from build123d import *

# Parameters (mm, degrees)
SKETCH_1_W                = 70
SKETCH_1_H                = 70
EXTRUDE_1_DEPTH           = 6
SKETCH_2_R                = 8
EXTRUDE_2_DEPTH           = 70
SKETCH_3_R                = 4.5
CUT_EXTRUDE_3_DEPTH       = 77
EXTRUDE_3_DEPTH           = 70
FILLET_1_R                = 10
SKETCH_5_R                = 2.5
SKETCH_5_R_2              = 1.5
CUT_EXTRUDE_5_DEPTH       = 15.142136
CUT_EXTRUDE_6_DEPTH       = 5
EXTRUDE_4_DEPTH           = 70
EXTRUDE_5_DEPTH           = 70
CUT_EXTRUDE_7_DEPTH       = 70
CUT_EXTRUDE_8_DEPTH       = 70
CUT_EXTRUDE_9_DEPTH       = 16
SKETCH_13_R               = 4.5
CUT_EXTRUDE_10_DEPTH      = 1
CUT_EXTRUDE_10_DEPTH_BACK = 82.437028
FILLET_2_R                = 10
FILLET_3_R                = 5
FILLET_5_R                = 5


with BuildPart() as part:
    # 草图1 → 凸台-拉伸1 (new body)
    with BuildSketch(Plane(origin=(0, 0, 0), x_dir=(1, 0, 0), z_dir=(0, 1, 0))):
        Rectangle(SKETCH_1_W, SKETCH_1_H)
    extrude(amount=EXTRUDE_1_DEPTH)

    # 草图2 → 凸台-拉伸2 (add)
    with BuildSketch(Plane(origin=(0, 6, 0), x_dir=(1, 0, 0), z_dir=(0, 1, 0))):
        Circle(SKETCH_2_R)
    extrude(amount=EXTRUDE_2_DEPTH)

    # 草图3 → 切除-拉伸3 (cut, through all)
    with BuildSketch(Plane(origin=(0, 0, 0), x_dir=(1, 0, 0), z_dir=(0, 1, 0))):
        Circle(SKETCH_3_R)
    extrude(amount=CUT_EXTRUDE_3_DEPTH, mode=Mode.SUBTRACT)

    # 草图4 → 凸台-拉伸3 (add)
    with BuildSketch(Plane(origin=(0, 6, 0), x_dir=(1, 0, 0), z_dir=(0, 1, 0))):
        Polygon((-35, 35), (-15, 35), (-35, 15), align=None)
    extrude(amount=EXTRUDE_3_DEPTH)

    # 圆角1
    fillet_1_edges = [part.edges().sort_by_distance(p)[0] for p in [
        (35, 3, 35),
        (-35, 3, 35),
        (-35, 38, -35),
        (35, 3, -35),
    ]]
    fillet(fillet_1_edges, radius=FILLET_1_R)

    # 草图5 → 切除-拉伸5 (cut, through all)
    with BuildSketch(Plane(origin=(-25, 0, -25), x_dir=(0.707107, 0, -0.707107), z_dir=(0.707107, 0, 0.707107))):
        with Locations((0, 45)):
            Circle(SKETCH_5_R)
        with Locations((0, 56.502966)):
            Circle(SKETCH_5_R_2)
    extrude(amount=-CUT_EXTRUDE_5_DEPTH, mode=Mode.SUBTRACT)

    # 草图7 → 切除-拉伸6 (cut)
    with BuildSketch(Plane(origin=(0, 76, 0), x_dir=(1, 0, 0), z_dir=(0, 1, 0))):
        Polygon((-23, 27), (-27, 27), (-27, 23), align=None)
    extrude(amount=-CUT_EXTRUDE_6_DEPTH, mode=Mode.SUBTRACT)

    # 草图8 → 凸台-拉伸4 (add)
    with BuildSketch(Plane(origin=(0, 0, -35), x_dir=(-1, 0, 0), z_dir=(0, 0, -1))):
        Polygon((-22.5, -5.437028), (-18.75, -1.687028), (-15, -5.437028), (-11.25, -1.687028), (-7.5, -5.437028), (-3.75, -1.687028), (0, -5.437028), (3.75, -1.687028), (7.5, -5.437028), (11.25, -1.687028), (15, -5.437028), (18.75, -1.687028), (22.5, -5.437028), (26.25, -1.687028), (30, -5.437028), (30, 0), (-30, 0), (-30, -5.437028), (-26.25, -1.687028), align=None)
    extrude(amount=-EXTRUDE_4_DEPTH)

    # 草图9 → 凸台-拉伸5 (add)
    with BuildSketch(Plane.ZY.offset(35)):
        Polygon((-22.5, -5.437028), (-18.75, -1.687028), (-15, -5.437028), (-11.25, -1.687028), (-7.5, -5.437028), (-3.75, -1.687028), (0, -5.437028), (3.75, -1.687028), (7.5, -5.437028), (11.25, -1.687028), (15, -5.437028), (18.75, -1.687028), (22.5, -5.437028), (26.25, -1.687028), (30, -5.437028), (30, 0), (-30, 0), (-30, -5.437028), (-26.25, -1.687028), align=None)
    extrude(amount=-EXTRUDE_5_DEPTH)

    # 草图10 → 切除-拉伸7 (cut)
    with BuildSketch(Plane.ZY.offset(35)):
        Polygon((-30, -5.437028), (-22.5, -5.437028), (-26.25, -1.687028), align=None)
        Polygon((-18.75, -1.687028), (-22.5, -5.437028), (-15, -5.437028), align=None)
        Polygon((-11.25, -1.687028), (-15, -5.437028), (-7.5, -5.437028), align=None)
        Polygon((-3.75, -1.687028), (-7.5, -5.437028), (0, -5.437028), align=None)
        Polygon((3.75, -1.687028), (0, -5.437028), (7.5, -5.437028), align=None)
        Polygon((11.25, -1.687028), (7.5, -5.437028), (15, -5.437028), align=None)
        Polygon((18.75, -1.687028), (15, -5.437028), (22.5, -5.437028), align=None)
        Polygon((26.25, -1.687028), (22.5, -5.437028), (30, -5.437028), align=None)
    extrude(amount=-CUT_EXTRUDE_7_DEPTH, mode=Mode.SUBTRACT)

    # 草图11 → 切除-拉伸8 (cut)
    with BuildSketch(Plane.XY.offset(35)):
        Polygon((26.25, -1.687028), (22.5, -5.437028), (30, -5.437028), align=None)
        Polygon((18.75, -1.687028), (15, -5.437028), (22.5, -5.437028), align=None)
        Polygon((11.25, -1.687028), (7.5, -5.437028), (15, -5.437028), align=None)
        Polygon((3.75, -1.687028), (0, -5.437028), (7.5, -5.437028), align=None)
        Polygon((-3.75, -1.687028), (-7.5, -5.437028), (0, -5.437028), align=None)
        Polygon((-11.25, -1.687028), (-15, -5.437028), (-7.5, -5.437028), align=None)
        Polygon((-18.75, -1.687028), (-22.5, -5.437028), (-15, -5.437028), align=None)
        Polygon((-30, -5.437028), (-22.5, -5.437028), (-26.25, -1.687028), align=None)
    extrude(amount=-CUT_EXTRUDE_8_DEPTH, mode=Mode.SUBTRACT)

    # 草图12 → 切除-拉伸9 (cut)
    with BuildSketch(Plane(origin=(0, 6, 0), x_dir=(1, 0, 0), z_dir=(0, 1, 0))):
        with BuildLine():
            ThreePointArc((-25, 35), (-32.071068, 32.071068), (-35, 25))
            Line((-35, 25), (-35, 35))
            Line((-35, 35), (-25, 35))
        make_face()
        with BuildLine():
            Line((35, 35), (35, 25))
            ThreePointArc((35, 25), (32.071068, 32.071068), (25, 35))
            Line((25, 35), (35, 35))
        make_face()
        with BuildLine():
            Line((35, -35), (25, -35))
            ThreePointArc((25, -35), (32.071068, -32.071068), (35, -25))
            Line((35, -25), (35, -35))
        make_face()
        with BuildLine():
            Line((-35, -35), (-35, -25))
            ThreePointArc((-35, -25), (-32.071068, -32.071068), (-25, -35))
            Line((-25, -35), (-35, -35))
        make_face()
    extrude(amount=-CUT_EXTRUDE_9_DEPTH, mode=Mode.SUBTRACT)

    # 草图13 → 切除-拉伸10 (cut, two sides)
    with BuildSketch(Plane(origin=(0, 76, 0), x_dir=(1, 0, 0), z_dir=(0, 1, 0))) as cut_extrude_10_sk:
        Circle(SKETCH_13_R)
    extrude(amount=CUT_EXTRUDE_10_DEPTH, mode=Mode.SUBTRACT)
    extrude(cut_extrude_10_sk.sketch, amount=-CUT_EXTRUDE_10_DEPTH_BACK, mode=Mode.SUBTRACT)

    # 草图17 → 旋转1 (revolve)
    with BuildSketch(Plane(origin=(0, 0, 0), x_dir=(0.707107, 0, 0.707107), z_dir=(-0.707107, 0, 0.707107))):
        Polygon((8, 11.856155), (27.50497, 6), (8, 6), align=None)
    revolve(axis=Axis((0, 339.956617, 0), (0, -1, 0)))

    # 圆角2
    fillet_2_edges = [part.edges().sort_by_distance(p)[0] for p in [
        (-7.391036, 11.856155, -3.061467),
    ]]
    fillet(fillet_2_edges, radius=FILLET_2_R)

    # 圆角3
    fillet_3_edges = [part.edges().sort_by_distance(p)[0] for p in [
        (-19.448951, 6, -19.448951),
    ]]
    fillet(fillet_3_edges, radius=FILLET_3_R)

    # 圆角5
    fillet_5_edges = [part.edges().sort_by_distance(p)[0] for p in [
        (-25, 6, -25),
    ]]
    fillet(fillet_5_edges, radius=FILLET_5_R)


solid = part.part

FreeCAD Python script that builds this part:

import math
import FreeCAD as App
import Part
import Sketcher


def edges_at(feature, points):
    """Names of the edges that pass closest to the given points."""
    edges = feature.Shape.Edges
    near = lambda p: min(range(len(edges)), key=lambda i: edges[i].distToShape(Part.Vertex(*p))[0])
    return sorted({f"Edge{near(p) + 1}" for p in points})

doc = App.newDocument("Part")
body = doc.addObject("PartDesign::Body", "Body")

sketch1 = body.newObject("Sketcher::SketchObject", "Sketch")
sketch1.AttachmentSupport = (doc.getObject("XZ_Plane"), [""])
sketch1.MapMode = "FlatFace"
sketch1.addGeometry([
    Part.LineSegment(App.Vector(-35, -35, 0), App.Vector(-35, 35, 0)),
    Part.LineSegment(App.Vector(-35, 35, 0), App.Vector(35, 35, 0)),
    Part.LineSegment(App.Vector(35, 35, 0), App.Vector(35, -35, 0)),
    Part.LineSegment(App.Vector(35, -35, 0), App.Vector(-35, -35, 0)),
], False)
sketch1.addConstraint([
    Sketcher.Constraint("Coincident", 0, 2, 1, 1),
    Sketcher.Constraint("Coincident", 1, 2, 2, 1),
    Sketcher.Constraint("Coincident", 2, 2, 3, 1),
    Sketcher.Constraint("Coincident", 3, 2, 0, 1),
    Sketcher.Constraint("Vertical", 0),
    Sketcher.Constraint("Horizontal", 1),
    Sketcher.Constraint("Vertical", 2),
    Sketcher.Constraint("Horizontal", 3),
    Sketcher.Constraint("Symmetric", 0, 2, 2, 2, -1, 1),
    Sketcher.Constraint("Equal", 3, 0),
    Sketcher.Constraint("DistanceX", 1, 1, 1, 2, 70.0),
])
pad1 = body.newObject("PartDesign::Pad", "Pad")
pad1.Profile = sketch1
pad1.Length = 6
pad1.Reversed = True

sketch2 = body.newObject("Sketcher::SketchObject", "Sketch001")
sketch2.AttachmentSupport = (doc.getObject("XZ_Plane"), [""])
sketch2.MapMode = "FlatFace"
sketch2.AttachmentOffset = App.Placement(App.Vector(0, 0, -6), App.Rotation())
sketch2.addGeometry(Part.Circle(App.Vector(0, 0, 0), App.Vector(0, 0, 1), 8), False)
sketch2.addConstraint([
    Sketcher.Constraint("Coincident", 0, 3, -1, 1),
    Sketcher.Constraint("Diameter", 0, 16.0),
])
pad2 = body.newObject("PartDesign::Pad", "Pad001")
pad2.Profile = sketch2
pad2.Length = 70
pad2.Reversed = True

sketch3 = body.newObject("Sketcher::SketchObject", "Sketch002")
sketch3.AttachmentSupport = (doc.getObject("XZ_Plane"), [""])
sketch3.MapMode = "FlatFace"
sketch3.addGeometry(Part.Circle(App.Vector(0, 0, 0), App.Vector(0, 0, 1), 4.5), False)
sketch3.addConstraint([
    Sketcher.Constraint("Coincident", 0, 3, -1, 1),
    Sketcher.Constraint("Diameter", 0, 9.0),
])
pocket1 = body.newObject("PartDesign::Pocket", "Pocket")
pocket1.Profile = sketch3
pocket1.Type = "ThroughAll"

sketch4 = body.newObject("Sketcher::SketchObject", "Sketch003")
sketch4.AttachmentSupport = (doc.getObject("XZ_Plane"), [""])
sketch4.MapMode = "FlatFace"
sketch4.AttachmentOffset = App.Placement(App.Vector(0, 0, -6), App.Rotation())
sketch4.addGeometry([
    Part.LineSegment(App.Vector(-15, -35, 0), App.Vector(-35, -35, 0)),
    Part.LineSegment(App.Vector(-35, -35, 0), App.Vector(-35, -15, 0)),
    Part.LineSegment(App.Vector(-35, -15, 0), App.Vector(-15, -35, 0)),
], False)
sketch4.addConstraint([
    Sketcher.Constraint("Coincident", 0, 2, 1, 1),
    Sketcher.Constraint("Coincident", 1, 2, 2, 1),
    Sketcher.Constraint("Coincident", 2, 2, 0, 1),
    Sketcher.Constraint("Horizontal", 0),
    Sketcher.Constraint("Vertical", 1),
    Sketcher.Constraint("Equal", 0, 1),
    Sketcher.Constraint("DistanceX", 0, 2, 0, 1, 20.0),
    Sketcher.Constraint("DistanceX", 0, 2, -1, 1, 35.0),
    Sketcher.Constraint("DistanceY", 0, 2, -1, 1, 35.0),
])
pad3 = body.newObject("PartDesign::Pad", "Pad002")
pad3.Profile = sketch4
pad3.Length = 70
pad3.Reversed = True
doc.recompute()

fillet = body.newObject("PartDesign::Fillet", "Fillet")
fillet.Base = (pad3, edges_at(pad3, [
    (35, 3, 35),
    (-35, 3, 35),
    (-35, 38, -35),
    (35, 3, -35),
]))
fillet.Radius = 10

sketch5 = body.newObject("Sketcher::SketchObject", "Sketch004")
sketch5.Placement = App.Placement(App.Vector(-25, 0, -25), App.Rotation(App.Vector(0.707106781, 0, -0.707106781), App.Vector(0, 0.999999999, 0), App.Vector(0.707106781, 0, 0.707106781), "ZXY"))
sketch5.addGeometry([
    Part.Circle(App.Vector(0, 45, 0), App.Vector(0, 0, 1), 2.5),
    Part.Circle(App.Vector(0, 56.502966, 0), App.Vector(0, 0, 1), 1.5),
], False)
sketch5.addConstraint([
    Sketcher.Constraint("PointOnObject", 0, 3, -2),
    Sketcher.Constraint("PointOnObject", 1, 3, -2),
    Sketcher.Constraint("Diameter", 0, 5.0),
    Sketcher.Constraint("Diameter", 1, 3.0),
    Sketcher.Constraint("DistanceY", -1, 1, 0, 3, 45.0),
    Sketcher.Constraint("DistanceY", -1, 1, 1, 3, 56.502966),
])
pocket2 = body.newObject("PartDesign::Pocket", "Pocket001")
pocket2.Profile = sketch5
pocket2.Type = "ThroughAll"

sketch6 = body.newObject("Sketcher::SketchObject", "Sketch005")
sketch6.AttachmentSupport = (doc.getObject("XZ_Plane"), [""])
sketch6.MapMode = "FlatFace"
sketch6.AttachmentOffset = App.Placement(App.Vector(0, 0, -76), App.Rotation())
sketch6.addGeometry([
    Part.LineSegment(App.Vector(-23, -27, 0), App.Vector(-27, -27, 0)),
    Part.LineSegment(App.Vector(-27, -27, 0), App.Vector(-27, -23, 0)),
    Part.LineSegment(App.Vector(-27, -23, 0), App.Vector(-23, -27, 0)),
], False)
sketch6.addConstraint([
    Sketcher.Constraint("Coincident", 0, 2, 1, 1),
    Sketcher.Constraint("Coincident", 1, 2, 2, 1),
    Sketcher.Constraint("Coincident", 2, 2, 0, 1),
    Sketcher.Constraint("Horizontal", 0),
    Sketcher.Constraint("Vertical", 1),
    Sketcher.Constraint("Equal", 0, 1),
    Sketcher.Constraint("DistanceX", 0, 2, 0, 1, 4.0),
    Sketcher.Constraint("DistanceX", 0, 2, -1, 1, 27.0),
    Sketcher.Constraint("DistanceY", 0, 2, -1, 1, 27.0),
])
pocket3 = body.newObject("PartDesign::Pocket", "Pocket002")
pocket3.Profile = sketch6
pocket3.Length = 5
pocket3.Reversed = True

sketch7 = body.newObject("Sketcher::SketchObject", "Sketch006")
sketch7.AttachmentSupport = (doc.getObject("XY_Plane"), [""])
sketch7.MapMode = "FlatFace"
sketch7.AttachmentOffset = App.Placement(App.Vector(0, 0, -35), App.Rotation())
sketch7.addGeometry([
    Part.LineSegment(App.Vector(22.5, -5.437028, 0), App.Vector(18.75, -1.687028, 0)),
    Part.LineSegment(App.Vector(18.75, -1.687028, 0), App.Vector(15, -5.437028, 0)),
    Part.LineSegment(App.Vector(15, -5.437028, 0), App.Vector(11.25, -1.687028, 0)),
    Part.LineSegment(App.Vector(11.25, -1.687028, 0), App.Vector(7.5, -5.437028, 0)),
    Part.LineSegment(App.Vector(7.5, -5.437028, 0), App.Vector(3.75, -1.687028, 0)),
    Part.LineSegment(App.Vector(3.75, -1.687028, 0), App.Vector(0, -5.437028, 0)),
    Part.LineSegment(App.Vector(0, -5.437028, 0), App.Vector(-3.75, -1.687028, 0)),
    Part.LineSegment(App.Vector(-3.75, -1.687028, 0), App.Vector(-7.5, -5.437028, 0)),
    Part.LineSegment(App.Vector(-7.5, -5.437028, 0), App.Vector(-11.25, -1.687028, 0)),
    Part.LineSegment(App.Vector(-11.25, -1.687028, 0), App.Vector(-15, -5.437028, 0)),
    Part.LineSegment(App.Vector(-15, -5.437028, 0), App.Vector(-18.75, -1.687028, 0)),
    Part.LineSegment(App.Vector(-18.75, -1.687028, 0), App.Vector(-22.5, -5.437028, 0)),
    Part.LineSegment(App.Vector(-22.5, -5.437028, 0), App.Vector(-26.25, -1.687028, 0)),
    Part.LineSegment(App.Vector(-26.25, -1.687028, 0), App.Vector(-30, -5.437028, 0)),
    Part.LineSegment(App.Vector(-30, -5.437028, 0), App.Vector(-30, 0, 0)),
    Part.LineSegment(App.Vector(-30, 0, 0), App.Vector(30, 0, 0)),
    Part.LineSegment(App.Vector(30, 0, 0), App.Vector(30, -5.437028, 0)),
    Part.LineSegment(App.Vector(30, -5.437028, 0), App.Vector(26.25, -1.687028, 0)),
    Part.LineSegment(App.Vector(26.25, -1.687028, 0), App.Vector(22.5, -5.437028, 0)),
], False)
sketch7.addConstraint([
    Sketcher.Constraint("Coincident", 0, 2, 1, 1),
    Sketcher.Constraint("Coincident", 1, 2, 2, 1),
    Sketcher.Constraint("Coincident", 2, 2, 3, 1),
    Sketcher.Constraint("Coincident", 3, 2, 4, 1),
    Sketcher.Constraint("Coincident", 4, 2, 5, 1),
    Sketcher.Constraint("Coincident", 5, 2, 6, 1),
    Sketcher.Constraint("Coincident", 6, 2, 7, 1),
    Sketcher.Constraint("Coincident", 7, 2, 8, 1),
    Sketcher.Constraint("Coincident", 8, 2, 9, 1),
    Sketcher.Constraint("Coincident", 9, 2, 10, 1),
    Sketcher.Constraint("Coincident", 10, 2, 11, 1),
    Sketcher.Constraint("Coincident", 11, 2, 12, 1),
    Sketcher.Constraint("Coincident", 12, 2, 13, 1),
    Sketcher.Constraint("Coincident", 13, 2, 14, 1),
    Sketcher.Constraint("Coincident", 14, 2, 15, 1),
    Sketcher.Constraint("Coincident", 15, 2, 16, 1),
    Sketcher.Constraint("Coincident", 16, 2, 17, 1),
    Sketcher.Constraint("Coincident", 17, 2, 18, 1),
    Sketcher.Constraint("Coincident", 18, 2, 0, 1),
    Sketcher.Constraint("Vertical", 14),
    Sketcher.Constraint("Horizontal", 15),
    Sketcher.Constraint("Vertical", 16),
    Sketcher.Constraint("Symmetric", 14, 2, 15, 2, -1, 1),
    Sketcher.Constraint("Symmetric", 4, 2, 6, 2, -2),
    Sketcher.Constraint("Symmetric", 3, 2, 7, 2, -2),
    Sketcher.Constraint("Symmetric", 2, 2, 8, 2, -2),
    Sketcher.Constraint("Symmetric", 1, 2, 9, 2, -2),
    Sketcher.Constraint("Symmetric", 0, 2, 10, 2, -2),
    Sketcher.Constraint("Symmetric", 12, 2, 17, 2, -2),
    Sketcher.Constraint("Symmetric", 11, 2, 18, 2, -2),
    Sketcher.Constraint("PointOnObject", 5, 2, -2),
    Sketcher.Constraint("Perpendicular", 0, 1),
    Sketcher.Constraint("Perpendicular", 1, 2),
    Sketcher.Constraint("Perpendicular", 2, 3),
    Sketcher.Constraint("Perpendicular", 3, 4),
    Sketcher.Constraint("Perpendicular", 4, 5),
    Sketcher.Constraint("Perpendicular", 5, 6),
    Sketcher.Constraint("Perpendicular", 11, 12),
    Sketcher.Constraint("Perpendicular", 12, 13),
    Sketcher.Constraint("Perpendicular", 13, 17),
    Sketcher.Constraint("Horizontal", 0, 2, 2, 2),
    Sketcher.Constraint("Horizontal", 1, 2, 3, 2),
    Sketcher.Constraint("Horizontal", 2, 2, 4, 2),
    Sketcher.Constraint("Horizontal", 3, 2, 5, 2),
    Sketcher.Constraint("Horizontal", 9, 2, 11, 2),
    Sketcher.Constraint("Horizontal", 10, 2, 12, 2),
    Sketcher.Constraint("Horizontal", 11, 2, 13, 2),
    Sketcher.Constraint("DistanceX", 15, 1, 15, 2, 60.0),
    Sketcher.Constraint("DistanceY", 14, 1, 14, 2, 5.437028),
])
pad4 = body.newObject("PartDesign::Pad", "Pad003")
pad4.Profile = sketch7
pad4.Length = 70

sketch8 = body.newObject("Sketcher::SketchObject", "Sketch007")
sketch8.AttachmentSupport = (doc.getObject("YZ_Plane"), [""])
sketch8.MapMode = "FlatFace"
sketch8.AttachmentOffset = App.Placement(App.Vector(0, 0, -35), App.Rotation())
sketch8.addGeometry([
    Part.LineSegment(App.Vector(-5.437028, -22.5, 0), App.Vector(-1.687028, -18.75, 0)),
    Part.LineSegment(App.Vector(-1.687028, -18.75, 0), App.Vector(-5.437028, -15, 0)),
    Part.LineSegment(App.Vector(-5.437028, -15, 0), App.Vector(-1.687028, -11.25, 0)),
    Part.LineSegment(App.Vector(-1.687028, -11.25, 0), App.Vector(-5.437028, -7.5, 0)),
    Part.LineSegment(App.Vector(-5.437028, -7.5, 0), App.Vector(-1.687028, -3.75, 0)),
    Part.LineSegment(App.Vector(-1.687028, -3.75, 0), App.Vector(-5.437028, 0, 0)),
    Part.LineSegment(App.Vector(-5.437028, 0, 0), App.Vector(-1.687028, 3.75, 0)),
    Part.LineSegment(App.Vector(-1.687028, 3.75, 0), App.Vector(-5.437028, 7.5, 0)),
    Part.LineSegment(App.Vector(-5.437028, 7.5, 0), App.Vector(-1.687028, 11.25, 0)),
    Part.LineSegment(App.Vector(-1.687028, 11.25, 0), App.Vector(-5.437028, 15, 0)),
    Part.LineSegment(App.Vector(-5.437028, 15, 0), App.Vector(-1.687028, 18.75, 0)),
    Part.LineSegment(App.Vector(-1.687028, 18.75, 0), App.Vector(-5.437028, 22.5, 0)),
    Part.LineSegment(App.Vector(-5.437028, 22.5, 0), App.Vector(-1.687028, 26.25, 0)),
    Part.LineSegment(App.Vector(-1.687028, 26.25, 0), App.Vector(-5.437028, 30, 0)),
    Part.LineSegment(App.Vector(-5.437028, 30, 0), App.Vector(0, 30, 0)),
    Part.LineSegment(App.Vector(0, 30, 0), App.Vector(0, -30, 0)),
    Part.LineSegment(App.Vector(0, -30, 0), App.Vector(-5.437028, -30, 0)),
    Part.LineSegment(App.Vector(-5.437028, -30, 0), App.Vector(-1.687028, -26.25, 0)),
    Part.LineSegment(App.Vector(-1.687028, -26.25, 0), App.Vector(-5.437028, -22.5, 0)),
], False)
sketch8.addConstraint([
    Sketcher.Constraint("Coincident", 0, 2, 1, 1),
    Sketcher.Constraint("Coincident", 1, 2, 2, 1),
    Sketcher.Constraint("Coincident", 2, 2, 3, 1),
    Sketcher.Constraint("Coincident", 3, 2, 4, 1),
    Sketcher.Constraint("Coincident", 4, 2, 5, 1),
    Sketcher.Constraint("Coincident", 5, 2, 6, 1),
    Sketcher.Constraint("Coincident", 6, 2, 7, 1),
    Sketcher.Constraint("Coincident", 7, 2, 8, 1),
    Sketcher.Constraint("Coincident", 8, 2, 9, 1),
    Sketcher.Constraint("Coincident", 9, 2, 10, 1),
    Sketcher.Constraint("Coincident", 10, 2, 11, 1),
    Sketcher.Constraint("Coincident", 11, 2, 12, 1),
    Sketcher.Constraint("Coincident", 12, 2, 13, 1),
    Sketcher.Constraint("Coincident", 13, 2, 14, 1),
    Sketcher.Constraint("Coincident", 14, 2, 15, 1),
    Sketcher.Constraint("Coincident", 15, 2, 16, 1),
    Sketcher.Constraint("Coincident", 16, 2, 17, 1),
    Sketcher.Constraint("Coincident", 17, 2, 18, 1),
    Sketcher.Constraint("Coincident", 18, 2, 0, 1),
    Sketcher.Constraint("Horizontal", 14),
    Sketcher.Constraint("Vertical", 15),
    Sketcher.Constraint("Horizontal", 16),
    Sketcher.Constraint("Symmetric", 14, 2, 15, 2, -1, 1),
    Sketcher.Constraint("Symmetric", 4, 2, 6, 2, -1),
    Sketcher.Constraint("Symmetric", 3, 2, 7, 2, -1),
    Sketcher.Constraint("Symmetric", 2, 2, 8, 2, -1),
    Sketcher.Constraint("Symmetric", 1, 2, 9, 2, -1),
    Sketcher.Constraint("Symmetric", 0, 2, 10, 2, -1),
    Sketcher.Constraint("Symmetric", 12, 2, 17, 2, -1),
    Sketcher.Constraint("Symmetric", 11, 2, 18, 2, -1),
    Sketcher.Constraint("PointOnObject", 5, 2, -1),
    Sketcher.Constraint("Perpendicular", 0, 1),
    Sketcher.Constraint("Perpendicular", 1, 2),
    Sketcher.Constraint("Perpendicular", 2, 3),
    Sketcher.Constraint("Perpendicular", 3, 4),
    Sketcher.Constraint("Perpendicular", 4, 5),
    Sketcher.Constraint("Perpendicular", 5, 6),
    Sketcher.Constraint("Perpendicular", 11, 12),
    Sketcher.Constraint("Perpendicular", 12, 13),
    Sketcher.Constraint("Perpendicular", 13, 17),
    Sketcher.Constraint("Vertical", 0, 2, 2, 2),
    Sketcher.Constraint("Vertical", 1, 2, 3, 2),
    Sketcher.Constraint("Vertical", 2, 2, 4, 2),
    Sketcher.Constraint("Vertical", 3, 2, 5, 2),
    Sketcher.Constraint("Vertical", 9, 2, 11, 2),
    Sketcher.Constraint("Vertical", 10, 2, 12, 2),
    Sketcher.Constraint("Vertical", 11, 2, 13, 2),
    Sketcher.Constraint("DistanceY", 15, 2, 15, 1, 60.0),
    Sketcher.Constraint("DistanceX", 14, 1, 14, 2, 5.437028),
])
pad5 = body.newObject("PartDesign::Pad", "Pad004")
pad5.Profile = sketch8
pad5.Length = 70

sketch9 = body.newObject("Sketcher::SketchObject", "Sketch008")
sketch9.AttachmentSupport = (doc.getObject("YZ_Plane"), [""])
sketch9.MapMode = "FlatFace"
sketch9.AttachmentOffset = App.Placement(App.Vector(0, 0, -35), App.Rotation())
sketch9.addGeometry([
    Part.LineSegment(App.Vector(-5.437028, -30, 0), App.Vector(-5.437028, -22.5, 0)),
    Part.LineSegment(App.Vector(-5.437028, -22.5, 0), App.Vector(-1.687028, -26.25, 0)),
    Part.LineSegment(App.Vector(-1.687028, -26.25, 0), App.Vector(-5.437028, -30, 0)),
    Part.LineSegment(App.Vector(-1.687028, -18.75, 0), App.Vector(-5.437028, -22.5, 0)),
    Part.LineSegment(App.Vector(-5.437028, -22.5, 0), App.Vector(-5.437028, -15, 0)),
    Part.LineSegment(App.Vector(-5.437028, -15, 0), App.Vector(-1.687028, -18.75, 0)),
    Part.LineSegment(App.Vector(-1.687028, -11.25, 0), App.Vector(-5.437028, -15, 0)),
    Part.LineSegment(App.Vector(-5.437028, -15, 0), App.Vector(-5.437028, -7.5, 0)),
    Part.LineSegment(App.Vector(-5.437028, -7.5, 0), App.Vector(-1.687028, -11.25, 0)),
    Part.LineSegment(App.Vector(-1.687028, -3.75, 0), App.Vector(-5.437028, -7.5, 0)),
    Part.LineSegment(App.Vector(-5.437028, -7.5, 0), App.Vector(-5.437028, 0, 0)),
    Part.LineSegment(App.Vector(-5.437028, 0, 0), App.Vector(-1.687028, -3.75, 0)),
    Part.LineSegment(App.Vector(-1.687028, 3.75, 0), App.Vector(-5.437028, 0, 0)),
    Part.LineSegment(App.Vector(-5.437028, 0, 0), App.Vector(-5.437028, 7.5, 0)),
    Part.LineSegment(App.Vector(-5.437028, 7.5, 0), App.Vector(-1.687028, 3.75, 0)),
    Part.LineSegment(App.Vector(-1.687028, 11.25, 0), App.Vector(-5.437028, 7.5, 0)),
    Part.LineSegment(App.Vector(-5.437028, 7.5, 0), App.Vector(-5.437028, 15, 0)),
    Part.LineSegment(App.Vector(-5.437028, 15, 0), App.Vector(-1.687028, 11.25, 0)),
    Part.LineSegment(App.Vector(-1.687028, 18.75, 0), App.Vector(-5.437028, 15, 0)),
    Part.LineSegment(App.Vector(-5.437028, 15, 0), App.Vector(-5.437028, 22.5, 0)),
    Part.LineSegment(App.Vector(-5.437028, 22.5, 0), App.Vector(-1.687028, 18.75, 0)),
    Part.LineSegment(App.Vector(-1.687028, 26.25, 0), App.Vector(-5.437028, 22.5, 0)),
    Part.LineSegment(App.Vector(-5.437028, 22.5, 0), App.Vector(-5.437028, 30, 0)),
    Part.LineSegment(App.Vector(-5.437028, 30, 0), App.Vector(-1.687028, 26.25, 0)),
], False)
sketch9.addConstraint([
    Sketcher.Constraint("Coincident", 0, 2, 1, 1),
    Sketcher.Constraint("Coincident", 1, 2, 2, 1),
    Sketcher.Constraint("Coincident", 2, 2, 0, 1),
    Sketcher.Constraint("Coincident", 3, 2, 4, 1),
    Sketcher.Constraint("Coincident", 4, 2, 5, 1),
    Sketcher.Constraint("Coincident", 5, 2, 3, 1),
    Sketcher.Constraint("Coincident", 6, 2, 7, 1),
    Sketcher.Constraint("Coincident", 7, 2, 8, 1),
    Sketcher.Constraint("Coincident", 8, 2, 6, 1),
    Sketcher.Constraint("Coincident", 9, 2, 10, 1),
    Sketcher.Constraint("Coincident", 10, 2, 11, 1),
    Sketcher.Constraint("Coincident", 11, 2, 9, 1),
    Sketcher.Constraint("Coincident", 12, 2, 13, 1),
    Sketcher.Constraint("Coincident", 13, 2, 14, 1),
    Sketcher.Constraint("Coincident", 14, 2, 12, 1),
    Sketcher.Constraint("Coincident", 15, 2, 16, 1),
    Sketcher.Constraint("Coincident", 16, 2, 17, 1),
    Sketcher.Constraint("Coincident", 17, 2, 15, 1),
    Sketcher.Constraint("Coincident", 18, 2, 19, 1),
    Sketcher.Constraint("Coincident", 19, 2, 20, 1),
    Sketcher.Constraint("Coincident", 20, 2, 18, 1),
    Sketcher.Constraint("Coincident", 21, 2, 22, 1),
    Sketcher.Constraint("Coincident", 22, 2, 23, 1),
    Sketcher.Constraint("Coincident", 23, 2, 21, 1),
    Sketcher.Constraint("Vertical", 0),
    Sketcher.Constraint("Vertical", 4),
    Sketcher.Constraint("Vertical", 7),
    Sketcher.Constraint("Vertical", 10),
    Sketcher.Constraint("Vertical", 13),
    Sketcher.Constraint("Vertical", 16),
    Sketcher.Constraint("Vertical", 19),
    Sketcher.Constraint("Vertical", 22),
    Sketcher.Constraint("Coincident", 3, 2, 0, 2),
    Sketcher.Constraint("Coincident", 6, 2, 4, 2),
    Sketcher.Constraint("Coincident", 9, 2, 7, 2),
    Sketcher.Constraint("Coincident", 12, 2, 10, 2),
    Sketcher.Constraint("Coincident", 15, 2, 13, 2),
    Sketcher.Constraint("Coincident", 18, 2, 16, 2),
    Sketcher.Constraint("Coincident", 21, 2, 19, 2),
    Sketcher.Constraint("Symmetric", 11, 2, 14, 2, -1),
    Sketcher.Constraint("Symmetric", 8, 2, 17, 2, -1),
    Sketcher.Constraint("Symmetric", 5, 2, 20, 2, -1),
    Sketcher.Constraint("Symmetric", 1, 2, 23, 2, -1),
    Sketcher.Constraint("PointOnObject", 10, 2, -1),
    Sketcher.Constraint("Perpendicular", 1, 2),
    Sketcher.Constraint("Parallel", 2, 3),
    Sketcher.Constraint("Perpendicular", 3, 5),
    Sketcher.Constraint("Perpendicular", 5, 6),
    Sketcher.Constraint("Perpendicular", 6, 8),
    Sketcher.Constraint("Perpendicular", 8, 9),
    Sketcher.Constraint("Perpendicular", 9, 11),
    Sketcher.Constraint("Perpendicular", 11, 12),
    Sketcher.Constraint("Perpendicular", 12, 14),
    Sketcher.Constraint("Perpendicular", 15, 17),
    Sketcher.Constraint("Perpendicular", 18, 20),
    Sketcher.Constraint("Perpendicular", 21, 23),
    Sketcher.Constraint("Vertical", 1, 2, 5, 2),
    Sketcher.Constraint("Vertical", 5, 2, 8, 2),
    Sketcher.Constraint("Vertical", 8, 2, 11, 2),
    Sketcher.Constraint("DistanceY", 0, 1, 0, 2, 7.5),
    Sketcher.Constraint("DistanceX", 0, 2, -1, 1, 5.437028),
])
pocket4 = body.newObject("PartDesign::Pocket", "Pocket003")
pocket4.Profile = sketch9
pocket4.Length = 70
pocket4.Reversed = True

sketch10 = body.newObject("Sketcher::SketchObject", "Sketch009")
sketch10.AttachmentSupport = (doc.getObject("XY_Plane"), [""])
sketch10.MapMode = "FlatFace"
sketch10.AttachmentOffset = App.Placement(App.Vector(0, 0, 35), App.Rotation())
sketch10.addGeometry([
    Part.LineSegment(App.Vector(26.25, -1.687028, 0), App.Vector(22.5, -5.437028, 0)),
    Part.LineSegment(App.Vector(22.5, -5.437028, 0), App.Vector(30, -5.437028, 0)),
    Part.LineSegment(App.Vector(30, -5.437028, 0), App.Vector(26.25, -1.687028, 0)),
    Part.LineSegment(App.Vector(18.75, -1.687028, 0), App.Vector(15, -5.437028, 0)),
    Part.LineSegment(App.Vector(15, -5.437028, 0), App.Vector(22.5, -5.437028, 0)),
    Part.LineSegment(App.Vector(22.5, -5.437028, 0), App.Vector(18.75, -1.687028, 0)),
    Part.LineSegment(App.Vector(11.25, -1.687028, 0), App.Vector(7.5, -5.437028, 0)),
    Part.LineSegment(App.Vector(7.5, -5.437028, 0), App.Vector(15, -5.437028, 0)),
    Part.LineSegment(App.Vector(15, -5.437028, 0), App.Vector(11.25, -1.687028, 0)),
    Part.LineSegment(App.Vector(3.75, -1.687028, 0), App.Vector(0, -5.437028, 0)),
    Part.LineSegment(App.Vector(0, -5.437028, 0), App.Vector(7.5, -5.437028, 0)),
    Part.LineSegment(App.Vector(7.5, -5.437028, 0), App.Vector(3.75, -1.687028, 0)),
    Part.LineSegment(App.Vector(-3.75, -1.687028, 0), App.Vector(-7.5, -5.437028, 0)),
    Part.LineSegment(App.Vector(-7.5, -5.437028, 0), App.Vector(0, -5.437028, 0)),
    Part.LineSegment(App.Vector(0, -5.437028, 0), App.Vector(-3.75, -1.687028, 0)),
    Part.LineSegment(App.Vector(-11.25, -1.687028, 0), App.Vector(-15, -5.437028, 0)),
    Part.LineSegment(App.Vector(-15, -5.437028, 0), App.Vector(-7.5, -5.437028, 0)),
    Part.LineSegment(App.Vector(-7.5, -5.437028, 0), App.Vector(-11.25, -1.687028, 0)),
    Part.LineSegment(App.Vector(-18.75, -1.687028, 0), App.Vector(-22.5, -5.437028, 0)),
    Part.LineSegment(App.Vector(-22.5, -5.437028, 0), App.Vector(-15, -5.437028, 0)),
    Part.LineSegment(App.Vector(-15, -5.437028, 0), App.Vector(-18.75, -1.687028, 0)),
    Part.LineSegment(App.Vector(-30, -5.437028, 0), App.Vector(-22.5, -5.437028, 0)),
    Part.LineSegment(App.Vector(-22.5, -5.437028, 0), App.Vector(-26.25, -1.687028, 0)),
    Part.LineSegment(App.Vector(-26.25, -1.687028, 0), App.Vector(-30, -5.437028, 0)),
], False)
sketch10.addConstraint([
    Sketcher.Constraint("Coincident", 0, 2, 1, 1),
    Sketcher.Constraint("Coincident", 1, 2, 2, 1),
    Sketcher.Constraint("Coincident", 2, 2, 0, 1),
    Sketcher.Constraint("Coincident", 3, 2, 4, 1),
    Sketcher.Constraint("Coincident", 4, 2, 5, 1),
    Sketcher.Constraint("Coincident", 5, 2, 3, 1),
    Sketcher.Constraint("Coincident", 6, 2, 7, 1),
    Sketcher.Constraint("Coincident", 7, 2, 8, 1),
    Sketcher.Constraint("Coincident", 8, 2, 6, 1),
    Sketcher.Constraint("Coincident", 9, 2, 10, 1),
    Sketcher.Constraint("Coincident", 10, 2, 11, 1),
    Sketcher.Constraint("Coincident", 11, 2, 9, 1),
    Sketcher.Constraint("Coincident", 12, 2, 13, 1),
    Sketcher.Constraint("Coincident", 13, 2, 14, 1),
    Sketcher.Constraint("Coincident", 14, 2, 12, 1),
    Sketcher.Constraint("Coincident", 15, 2, 16, 1),
    Sketcher.Constraint("Coincident", 16, 2, 17, 1),
    Sketcher.Constraint("Coincident", 17, 2, 15, 1),
    Sketcher.Constraint("Coincident", 18, 2, 19, 1),
    Sketcher.Constraint("Coincident", 19, 2, 20, 1),
    Sketcher.Constraint("Coincident", 20, 2, 18, 1),
    Sketcher.Constraint("Coincident", 21, 2, 22, 1),
    Sketcher.Constraint("Coincident", 22, 2, 23, 1),
    Sketcher.Constraint("Coincident", 23, 2, 21, 1),
    Sketcher.Constraint("Horizontal", 1),
    Sketcher.Constraint("Horizontal", 4),
    Sketcher.Constraint("Horizontal", 7),
    Sketcher.Constraint("Horizontal", 10),
    Sketcher.Constraint("Horizontal", 13),
    Sketcher.Constraint("Horizontal", 16),
    Sketcher.Constraint("Horizontal", 19),
    Sketcher.Constraint("Horizontal", 21),
    Sketcher.Constraint("Coincident", 4, 2, 0, 2),
    Sketcher.Constraint("Coincident", 7, 2, 3, 2),
    Sketcher.Constraint("Coincident", 10, 2, 6, 2),
    Sketcher.Constraint("Coincident", 13, 2, 9, 2),
    Sketcher.Constraint("Coincident", 16, 2, 12, 2),
    Sketcher.Constraint("Coincident", 19, 2, 15, 2),
    Sketcher.Constraint("Coincident", 21, 2, 18, 2),
    Sketcher.Constraint("Symmetric", 11, 2, 14, 2, -2),
    Sketcher.Constraint("Symmetric", 8, 2, 17, 2, -2),
    Sketcher.Constraint("Symmetric", 5, 2, 20, 2, -2),
    Sketcher.Constraint("Symmetric", 2, 2, 22, 2, -2),
    Sketcher.Constraint("PointOnObject", 9, 2, -2),
    Sketcher.Constraint("Perpendicular", 0, 2),
    Sketcher.Constraint("Perpendicular", 2, 3),
    Sketcher.Constraint("Perpendicular", 3, 5),
    Sketcher.Constraint("Perpendicular", 5, 6),
    Sketcher.Constraint("Perpendicular", 6, 8),
    Sketcher.Constraint("Perpendicular", 8, 9),
    Sketcher.Constraint("Perpendicular", 9, 11),
    Sketcher.Constraint("Perpendicular", 11, 12),
    Sketcher.Constraint("Perpendicular", 12, 14),
    Sketcher.Constraint("Perpendicular", 14, 15),
    Sketcher.Constraint("Perpendicular", 17, 18),
    Sketcher.Constraint("Perpendicular", 22, 23),
    Sketcher.Constraint("Horizontal", 2, 2, 5, 2),
    Sketcher.Constraint("Horizontal", 5, 2, 8, 2),
    Sketcher.Constraint("Horizontal", 8, 2, 11, 2),
    Sketcher.Constraint("DistanceX", 1, 1, 1, 2, 7.5),
    Sketcher.Constraint("DistanceY", 0, 2, -1, 1, 5.437028),
])
pocket5 = body.newObject("PartDesign::Pocket", "Pocket004")
pocket5.Profile = sketch10
pocket5.Length = 70

sketch11 = body.newObject("Sketcher::SketchObject", "Sketch010")
sketch11.AttachmentSupport = (doc.getObject("XZ_Plane"), [""])
sketch11.MapMode = "FlatFace"
sketch11.AttachmentOffset = App.Placement(App.Vector(0, 0, -6), App.Rotation())
sketch11.addGeometry([
    Part.ArcOfCircle(Part.Circle(App.Vector(-25.000001, -25.000001, 0), App.Vector(0, 0, 1), 9.999999), math.radians(179.999996), math.radians(270.000004)),
    Part.LineSegment(App.Vector(-25, -35, 0), App.Vector(-35, -35, 0)),
    Part.LineSegment(App.Vector(-35, -35, 0), App.Vector(-35, -25, 0)),
    Part.LineSegment(App.Vector(35, -25, 0), App.Vector(35, -35, 0)),
    Part.LineSegment(App.Vector(35, -35, 0), App.Vector(25, -35, 0)),
    Part.ArcOfCircle(Part.Circle(App.Vector(25.000001, -25.000001, 0), App.Vector(0, 0, 1), 9.999999), math.radians(-90.000004), math.radians(0.000004)),
    Part.LineSegment(App.Vector(25, 35, 0), App.Vector(35, 35, 0)),
    Part.LineSegment(App.Vector(35, 35, 0), App.Vector(35, 25, 0)),
    Part.ArcOfCircle(Part.Circle(App.Vector(25.000001, 25.000001, 0), App.Vector(0, 0, 1), 9.999999), math.radians(-0.000004), math.radians(90.000004)),
    Part.LineSegment(App.Vector(-35, 25, 0), App.Vector(-35, 35, 0)),
    Part.LineSegment(App.Vector(-35, 35, 0), App.Vector(-25, 35, 0)),
    Part.ArcOfCircle(Part.Circle(App.Vector(-25.000001, 25.000001, 0), App.Vector(0, 0, 1), 9.999999), math.radians(89.999996), math.radians(180.000004)),
], False)
sketch11.addConstraint([
    Sketcher.Constraint("Tangent", 0, 2, 1, 1),
    Sketcher.Constraint("Coincident", 1, 2, 2, 1),
    Sketcher.Constraint("Tangent", 2, 2, 0, 1),
    Sketcher.Constraint("Coincident", 3, 2, 4, 1),
    Sketcher.Constraint("Tangent", 4, 2, 5, 1),
    Sketcher.Constraint("Tangent", 5, 2, 3, 1),
    Sketcher.Constraint("Coincident", 6, 2, 7, 1),
    Sketcher.Constraint("Tangent", 7, 2, 8, 1),
    Sketcher.Constraint("Tangent", 8, 2, 6, 1),
    Sketcher.Constraint("Coincident", 9, 2, 10, 1),
    Sketcher.Constraint("Tangent", 10, 2, 11, 1),
    Sketcher.Constraint("Tangent", 11, 2, 9, 1),
    Sketcher.Constraint("Horizontal", 1),
    Sketcher.Constraint("Vertical", 2),
    Sketcher.Constraint("Vertical", 3),
    Sketcher.Constraint("Horizontal", 4),
    Sketcher.Constraint("Horizontal", 6),
    Sketcher.Constraint("Vertical", 7),
    Sketcher.Constraint("Vertical", 9),
    Sketcher.Constraint("Horizontal", 10),
    Sketcher.Constraint("Equal", 0, 5),
    Sketcher.Constraint("Equal", 5, 8),
    Sketcher.Constraint("Equal", 8, 11),
    Sketcher.Constraint("Symmetric", 0, 3, 8, 3, -1, 1),
    Sketcher.Constraint("Symmetric", 5, 3, 11, 3, -1, 1),
    Sketcher.Constraint("Symmetric", 0, 3, 5, 3, -2),
    Sketcher.Constraint("Radius", 0, 9.999999),
    Sketcher.Constraint("DistanceX", 0, 3, -1, 1, 25.000001),
    Sketcher.Constraint("DistanceY", 0, 3, -1, 1, 25.000001),
])
pocket6 = body.newObject("PartDesign::Pocket", "Pocket005")
pocket6.Profile = sketch11
pocket6.Length = 16
pocket6.Reversed = True

sketch12 = body.newObject("Sketcher::SketchObject", "Sketch011")
sketch12.AttachmentSupport = (doc.getObject("XZ_Plane"), [""])
sketch12.MapMode = "FlatFace"
sketch12.AttachmentOffset = App.Placement(App.Vector(0, 0, -76), App.Rotation())
sketch12.addGeometry(Part.Circle(App.Vector(0, 0, 0), App.Vector(0, 0, 1), 4.5), False)
sketch12.addConstraint([
    Sketcher.Constraint("Coincident", 0, 3, -1, 1),
    Sketcher.Constraint("Diameter", 0, 9.0),
])
pocket7 = body.newObject("PartDesign::Pocket", "Pocket006")
pocket7.Profile = sketch12
pocket7.Type = "ThroughAll"
pocket7.Midplane = True

sketch13 = body.newObject("Sketcher::SketchObject", "Sketch012")
sketch13.Placement = App.Placement(App.Vector(0, 0, 0), App.Rotation(App.Vector(0.707106781, 0, 0.707106781), App.Vector(0, 0.999999999, 0), App.Vector(-0.707106781, 0, 0.707106781), "ZXY"))
sketch13.addGeometry([
    Part.LineSegment(App.Vector(27.50497, 6, 0), App.Vector(8, 11.856155, 0)),
    Part.LineSegment(App.Vector(8, 11.856155, 0), App.Vector(8, 6, 0)),
    Part.LineSegment(App.Vector(8, 6, 0), App.Vector(27.50497, 6, 0)),
], False)
sketch13.addConstraint([
    Sketcher.Constraint("Coincident", 0, 2, 1, 1),
    Sketcher.Constraint("Coincident", 1, 2, 2, 1),
    Sketcher.Constraint("Coincident", 2, 2, 0, 1),
    Sketcher.Constraint("Vertical", 1),
    Sketcher.Constraint("Horizontal", 2),
    Sketcher.Constraint("DistanceX", -1, 1, 0, 2, 8.0),
    Sketcher.Constraint("DistanceY", -1, 1, 1, 2, 6.0),
    Sketcher.Constraint("DistanceX", 2, 1, 2, 2, 19.50497),
    Sketcher.Constraint("DistanceY", 1, 2, 1, 1, 5.856155),
])
revolution = body.newObject("PartDesign::Revolution", "Revolution")
revolution.Profile = sketch13
revolution.ReferenceAxis = (sketch13, ["V_Axis"])
revolution.Angle = 360
doc.recompute()

fillet2 = body.newObject("PartDesign::Fillet", "Fillet001")
fillet2.Base = (revolution, edges_at(revolution, [(-7.391, 11.856, -3.061)]))
fillet2.Radius = 10
doc.recompute()

fillet3 = body.newObject("PartDesign::Fillet", "Fillet002")
fillet3.Base = (fillet2, edges_at(fillet2, [(-19.449, 6, -19.449)]))
fillet3.Radius = 5
doc.recompute()

fillet4 = body.newObject("PartDesign::Fillet", "Fillet003")
fillet4.Base = (fillet3, edges_at(fillet3, [(-25, 6, -25)]))
fillet4.Radius = 5

doc.recompute()
